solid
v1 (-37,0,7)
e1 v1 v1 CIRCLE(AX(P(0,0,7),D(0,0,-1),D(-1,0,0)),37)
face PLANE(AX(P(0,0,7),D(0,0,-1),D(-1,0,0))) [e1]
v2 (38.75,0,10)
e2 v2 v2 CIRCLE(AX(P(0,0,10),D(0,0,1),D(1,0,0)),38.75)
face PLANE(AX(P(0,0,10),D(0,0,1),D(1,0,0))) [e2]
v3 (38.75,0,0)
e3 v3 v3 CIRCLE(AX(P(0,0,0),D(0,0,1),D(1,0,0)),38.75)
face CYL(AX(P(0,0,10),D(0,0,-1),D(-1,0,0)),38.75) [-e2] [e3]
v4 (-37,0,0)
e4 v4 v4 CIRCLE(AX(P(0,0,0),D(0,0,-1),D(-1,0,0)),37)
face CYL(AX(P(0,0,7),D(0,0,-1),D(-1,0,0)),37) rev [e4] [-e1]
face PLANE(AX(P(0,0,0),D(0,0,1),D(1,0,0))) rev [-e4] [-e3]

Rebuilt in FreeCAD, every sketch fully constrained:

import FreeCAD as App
import Part
import Sketcher
from FreeCAD import Vector

doc = App.newDocument("Part")
body = doc.addObject("PartDesign::Body", "Body")

sketch1 = doc.addObject("Sketcher::SketchObject", "Sketch")
body.addObject(sketch1)
sketch1.AttachmentSupport = (doc.XY_Plane, [""])
sketch1.MapMode = "FlatFace"
sketch1.addGeometry(Part.Circle(Vector(0, 0, 0), Vector(0, 0, 1), 39), False)
sketch1.addConstraint([
    Sketcher.Constraint("Coincident", 0, 3, -1, 1),
    Sketcher.Constraint("Diameter", 0, 77.5),
])
pad1 = doc.addObject("PartDesign::Pad", "Pad")
body.addObject(pad1)
pad1.Profile = sketch1
pad1.Length = 10

sketch2 = doc.addObject("Sketcher::SketchObject", "Sketch001")
body.addObject(sketch2)
sketch2.AttachmentSupport = (doc.XY_Plane, [""])
sketch2.MapMode = "FlatFace"
sketch2.addGeometry(Part.Circle(Vector(0, 0, 0), Vector(0, 0, 1), 37), False)
sketch2.addConstraint([
    Sketcher.Constraint("Coincident", 0, 3, -1, 1),
    Sketcher.Constraint("Diameter", 0, 74.0),
])
pocket1 = doc.addObject("PartDesign::Pocket", "Pocket")
body.addObject(pocket1)
pocket1.Profile = sketch2
pocket1.Length = 7
pocket1.Reversed = True

doc.recompute()
